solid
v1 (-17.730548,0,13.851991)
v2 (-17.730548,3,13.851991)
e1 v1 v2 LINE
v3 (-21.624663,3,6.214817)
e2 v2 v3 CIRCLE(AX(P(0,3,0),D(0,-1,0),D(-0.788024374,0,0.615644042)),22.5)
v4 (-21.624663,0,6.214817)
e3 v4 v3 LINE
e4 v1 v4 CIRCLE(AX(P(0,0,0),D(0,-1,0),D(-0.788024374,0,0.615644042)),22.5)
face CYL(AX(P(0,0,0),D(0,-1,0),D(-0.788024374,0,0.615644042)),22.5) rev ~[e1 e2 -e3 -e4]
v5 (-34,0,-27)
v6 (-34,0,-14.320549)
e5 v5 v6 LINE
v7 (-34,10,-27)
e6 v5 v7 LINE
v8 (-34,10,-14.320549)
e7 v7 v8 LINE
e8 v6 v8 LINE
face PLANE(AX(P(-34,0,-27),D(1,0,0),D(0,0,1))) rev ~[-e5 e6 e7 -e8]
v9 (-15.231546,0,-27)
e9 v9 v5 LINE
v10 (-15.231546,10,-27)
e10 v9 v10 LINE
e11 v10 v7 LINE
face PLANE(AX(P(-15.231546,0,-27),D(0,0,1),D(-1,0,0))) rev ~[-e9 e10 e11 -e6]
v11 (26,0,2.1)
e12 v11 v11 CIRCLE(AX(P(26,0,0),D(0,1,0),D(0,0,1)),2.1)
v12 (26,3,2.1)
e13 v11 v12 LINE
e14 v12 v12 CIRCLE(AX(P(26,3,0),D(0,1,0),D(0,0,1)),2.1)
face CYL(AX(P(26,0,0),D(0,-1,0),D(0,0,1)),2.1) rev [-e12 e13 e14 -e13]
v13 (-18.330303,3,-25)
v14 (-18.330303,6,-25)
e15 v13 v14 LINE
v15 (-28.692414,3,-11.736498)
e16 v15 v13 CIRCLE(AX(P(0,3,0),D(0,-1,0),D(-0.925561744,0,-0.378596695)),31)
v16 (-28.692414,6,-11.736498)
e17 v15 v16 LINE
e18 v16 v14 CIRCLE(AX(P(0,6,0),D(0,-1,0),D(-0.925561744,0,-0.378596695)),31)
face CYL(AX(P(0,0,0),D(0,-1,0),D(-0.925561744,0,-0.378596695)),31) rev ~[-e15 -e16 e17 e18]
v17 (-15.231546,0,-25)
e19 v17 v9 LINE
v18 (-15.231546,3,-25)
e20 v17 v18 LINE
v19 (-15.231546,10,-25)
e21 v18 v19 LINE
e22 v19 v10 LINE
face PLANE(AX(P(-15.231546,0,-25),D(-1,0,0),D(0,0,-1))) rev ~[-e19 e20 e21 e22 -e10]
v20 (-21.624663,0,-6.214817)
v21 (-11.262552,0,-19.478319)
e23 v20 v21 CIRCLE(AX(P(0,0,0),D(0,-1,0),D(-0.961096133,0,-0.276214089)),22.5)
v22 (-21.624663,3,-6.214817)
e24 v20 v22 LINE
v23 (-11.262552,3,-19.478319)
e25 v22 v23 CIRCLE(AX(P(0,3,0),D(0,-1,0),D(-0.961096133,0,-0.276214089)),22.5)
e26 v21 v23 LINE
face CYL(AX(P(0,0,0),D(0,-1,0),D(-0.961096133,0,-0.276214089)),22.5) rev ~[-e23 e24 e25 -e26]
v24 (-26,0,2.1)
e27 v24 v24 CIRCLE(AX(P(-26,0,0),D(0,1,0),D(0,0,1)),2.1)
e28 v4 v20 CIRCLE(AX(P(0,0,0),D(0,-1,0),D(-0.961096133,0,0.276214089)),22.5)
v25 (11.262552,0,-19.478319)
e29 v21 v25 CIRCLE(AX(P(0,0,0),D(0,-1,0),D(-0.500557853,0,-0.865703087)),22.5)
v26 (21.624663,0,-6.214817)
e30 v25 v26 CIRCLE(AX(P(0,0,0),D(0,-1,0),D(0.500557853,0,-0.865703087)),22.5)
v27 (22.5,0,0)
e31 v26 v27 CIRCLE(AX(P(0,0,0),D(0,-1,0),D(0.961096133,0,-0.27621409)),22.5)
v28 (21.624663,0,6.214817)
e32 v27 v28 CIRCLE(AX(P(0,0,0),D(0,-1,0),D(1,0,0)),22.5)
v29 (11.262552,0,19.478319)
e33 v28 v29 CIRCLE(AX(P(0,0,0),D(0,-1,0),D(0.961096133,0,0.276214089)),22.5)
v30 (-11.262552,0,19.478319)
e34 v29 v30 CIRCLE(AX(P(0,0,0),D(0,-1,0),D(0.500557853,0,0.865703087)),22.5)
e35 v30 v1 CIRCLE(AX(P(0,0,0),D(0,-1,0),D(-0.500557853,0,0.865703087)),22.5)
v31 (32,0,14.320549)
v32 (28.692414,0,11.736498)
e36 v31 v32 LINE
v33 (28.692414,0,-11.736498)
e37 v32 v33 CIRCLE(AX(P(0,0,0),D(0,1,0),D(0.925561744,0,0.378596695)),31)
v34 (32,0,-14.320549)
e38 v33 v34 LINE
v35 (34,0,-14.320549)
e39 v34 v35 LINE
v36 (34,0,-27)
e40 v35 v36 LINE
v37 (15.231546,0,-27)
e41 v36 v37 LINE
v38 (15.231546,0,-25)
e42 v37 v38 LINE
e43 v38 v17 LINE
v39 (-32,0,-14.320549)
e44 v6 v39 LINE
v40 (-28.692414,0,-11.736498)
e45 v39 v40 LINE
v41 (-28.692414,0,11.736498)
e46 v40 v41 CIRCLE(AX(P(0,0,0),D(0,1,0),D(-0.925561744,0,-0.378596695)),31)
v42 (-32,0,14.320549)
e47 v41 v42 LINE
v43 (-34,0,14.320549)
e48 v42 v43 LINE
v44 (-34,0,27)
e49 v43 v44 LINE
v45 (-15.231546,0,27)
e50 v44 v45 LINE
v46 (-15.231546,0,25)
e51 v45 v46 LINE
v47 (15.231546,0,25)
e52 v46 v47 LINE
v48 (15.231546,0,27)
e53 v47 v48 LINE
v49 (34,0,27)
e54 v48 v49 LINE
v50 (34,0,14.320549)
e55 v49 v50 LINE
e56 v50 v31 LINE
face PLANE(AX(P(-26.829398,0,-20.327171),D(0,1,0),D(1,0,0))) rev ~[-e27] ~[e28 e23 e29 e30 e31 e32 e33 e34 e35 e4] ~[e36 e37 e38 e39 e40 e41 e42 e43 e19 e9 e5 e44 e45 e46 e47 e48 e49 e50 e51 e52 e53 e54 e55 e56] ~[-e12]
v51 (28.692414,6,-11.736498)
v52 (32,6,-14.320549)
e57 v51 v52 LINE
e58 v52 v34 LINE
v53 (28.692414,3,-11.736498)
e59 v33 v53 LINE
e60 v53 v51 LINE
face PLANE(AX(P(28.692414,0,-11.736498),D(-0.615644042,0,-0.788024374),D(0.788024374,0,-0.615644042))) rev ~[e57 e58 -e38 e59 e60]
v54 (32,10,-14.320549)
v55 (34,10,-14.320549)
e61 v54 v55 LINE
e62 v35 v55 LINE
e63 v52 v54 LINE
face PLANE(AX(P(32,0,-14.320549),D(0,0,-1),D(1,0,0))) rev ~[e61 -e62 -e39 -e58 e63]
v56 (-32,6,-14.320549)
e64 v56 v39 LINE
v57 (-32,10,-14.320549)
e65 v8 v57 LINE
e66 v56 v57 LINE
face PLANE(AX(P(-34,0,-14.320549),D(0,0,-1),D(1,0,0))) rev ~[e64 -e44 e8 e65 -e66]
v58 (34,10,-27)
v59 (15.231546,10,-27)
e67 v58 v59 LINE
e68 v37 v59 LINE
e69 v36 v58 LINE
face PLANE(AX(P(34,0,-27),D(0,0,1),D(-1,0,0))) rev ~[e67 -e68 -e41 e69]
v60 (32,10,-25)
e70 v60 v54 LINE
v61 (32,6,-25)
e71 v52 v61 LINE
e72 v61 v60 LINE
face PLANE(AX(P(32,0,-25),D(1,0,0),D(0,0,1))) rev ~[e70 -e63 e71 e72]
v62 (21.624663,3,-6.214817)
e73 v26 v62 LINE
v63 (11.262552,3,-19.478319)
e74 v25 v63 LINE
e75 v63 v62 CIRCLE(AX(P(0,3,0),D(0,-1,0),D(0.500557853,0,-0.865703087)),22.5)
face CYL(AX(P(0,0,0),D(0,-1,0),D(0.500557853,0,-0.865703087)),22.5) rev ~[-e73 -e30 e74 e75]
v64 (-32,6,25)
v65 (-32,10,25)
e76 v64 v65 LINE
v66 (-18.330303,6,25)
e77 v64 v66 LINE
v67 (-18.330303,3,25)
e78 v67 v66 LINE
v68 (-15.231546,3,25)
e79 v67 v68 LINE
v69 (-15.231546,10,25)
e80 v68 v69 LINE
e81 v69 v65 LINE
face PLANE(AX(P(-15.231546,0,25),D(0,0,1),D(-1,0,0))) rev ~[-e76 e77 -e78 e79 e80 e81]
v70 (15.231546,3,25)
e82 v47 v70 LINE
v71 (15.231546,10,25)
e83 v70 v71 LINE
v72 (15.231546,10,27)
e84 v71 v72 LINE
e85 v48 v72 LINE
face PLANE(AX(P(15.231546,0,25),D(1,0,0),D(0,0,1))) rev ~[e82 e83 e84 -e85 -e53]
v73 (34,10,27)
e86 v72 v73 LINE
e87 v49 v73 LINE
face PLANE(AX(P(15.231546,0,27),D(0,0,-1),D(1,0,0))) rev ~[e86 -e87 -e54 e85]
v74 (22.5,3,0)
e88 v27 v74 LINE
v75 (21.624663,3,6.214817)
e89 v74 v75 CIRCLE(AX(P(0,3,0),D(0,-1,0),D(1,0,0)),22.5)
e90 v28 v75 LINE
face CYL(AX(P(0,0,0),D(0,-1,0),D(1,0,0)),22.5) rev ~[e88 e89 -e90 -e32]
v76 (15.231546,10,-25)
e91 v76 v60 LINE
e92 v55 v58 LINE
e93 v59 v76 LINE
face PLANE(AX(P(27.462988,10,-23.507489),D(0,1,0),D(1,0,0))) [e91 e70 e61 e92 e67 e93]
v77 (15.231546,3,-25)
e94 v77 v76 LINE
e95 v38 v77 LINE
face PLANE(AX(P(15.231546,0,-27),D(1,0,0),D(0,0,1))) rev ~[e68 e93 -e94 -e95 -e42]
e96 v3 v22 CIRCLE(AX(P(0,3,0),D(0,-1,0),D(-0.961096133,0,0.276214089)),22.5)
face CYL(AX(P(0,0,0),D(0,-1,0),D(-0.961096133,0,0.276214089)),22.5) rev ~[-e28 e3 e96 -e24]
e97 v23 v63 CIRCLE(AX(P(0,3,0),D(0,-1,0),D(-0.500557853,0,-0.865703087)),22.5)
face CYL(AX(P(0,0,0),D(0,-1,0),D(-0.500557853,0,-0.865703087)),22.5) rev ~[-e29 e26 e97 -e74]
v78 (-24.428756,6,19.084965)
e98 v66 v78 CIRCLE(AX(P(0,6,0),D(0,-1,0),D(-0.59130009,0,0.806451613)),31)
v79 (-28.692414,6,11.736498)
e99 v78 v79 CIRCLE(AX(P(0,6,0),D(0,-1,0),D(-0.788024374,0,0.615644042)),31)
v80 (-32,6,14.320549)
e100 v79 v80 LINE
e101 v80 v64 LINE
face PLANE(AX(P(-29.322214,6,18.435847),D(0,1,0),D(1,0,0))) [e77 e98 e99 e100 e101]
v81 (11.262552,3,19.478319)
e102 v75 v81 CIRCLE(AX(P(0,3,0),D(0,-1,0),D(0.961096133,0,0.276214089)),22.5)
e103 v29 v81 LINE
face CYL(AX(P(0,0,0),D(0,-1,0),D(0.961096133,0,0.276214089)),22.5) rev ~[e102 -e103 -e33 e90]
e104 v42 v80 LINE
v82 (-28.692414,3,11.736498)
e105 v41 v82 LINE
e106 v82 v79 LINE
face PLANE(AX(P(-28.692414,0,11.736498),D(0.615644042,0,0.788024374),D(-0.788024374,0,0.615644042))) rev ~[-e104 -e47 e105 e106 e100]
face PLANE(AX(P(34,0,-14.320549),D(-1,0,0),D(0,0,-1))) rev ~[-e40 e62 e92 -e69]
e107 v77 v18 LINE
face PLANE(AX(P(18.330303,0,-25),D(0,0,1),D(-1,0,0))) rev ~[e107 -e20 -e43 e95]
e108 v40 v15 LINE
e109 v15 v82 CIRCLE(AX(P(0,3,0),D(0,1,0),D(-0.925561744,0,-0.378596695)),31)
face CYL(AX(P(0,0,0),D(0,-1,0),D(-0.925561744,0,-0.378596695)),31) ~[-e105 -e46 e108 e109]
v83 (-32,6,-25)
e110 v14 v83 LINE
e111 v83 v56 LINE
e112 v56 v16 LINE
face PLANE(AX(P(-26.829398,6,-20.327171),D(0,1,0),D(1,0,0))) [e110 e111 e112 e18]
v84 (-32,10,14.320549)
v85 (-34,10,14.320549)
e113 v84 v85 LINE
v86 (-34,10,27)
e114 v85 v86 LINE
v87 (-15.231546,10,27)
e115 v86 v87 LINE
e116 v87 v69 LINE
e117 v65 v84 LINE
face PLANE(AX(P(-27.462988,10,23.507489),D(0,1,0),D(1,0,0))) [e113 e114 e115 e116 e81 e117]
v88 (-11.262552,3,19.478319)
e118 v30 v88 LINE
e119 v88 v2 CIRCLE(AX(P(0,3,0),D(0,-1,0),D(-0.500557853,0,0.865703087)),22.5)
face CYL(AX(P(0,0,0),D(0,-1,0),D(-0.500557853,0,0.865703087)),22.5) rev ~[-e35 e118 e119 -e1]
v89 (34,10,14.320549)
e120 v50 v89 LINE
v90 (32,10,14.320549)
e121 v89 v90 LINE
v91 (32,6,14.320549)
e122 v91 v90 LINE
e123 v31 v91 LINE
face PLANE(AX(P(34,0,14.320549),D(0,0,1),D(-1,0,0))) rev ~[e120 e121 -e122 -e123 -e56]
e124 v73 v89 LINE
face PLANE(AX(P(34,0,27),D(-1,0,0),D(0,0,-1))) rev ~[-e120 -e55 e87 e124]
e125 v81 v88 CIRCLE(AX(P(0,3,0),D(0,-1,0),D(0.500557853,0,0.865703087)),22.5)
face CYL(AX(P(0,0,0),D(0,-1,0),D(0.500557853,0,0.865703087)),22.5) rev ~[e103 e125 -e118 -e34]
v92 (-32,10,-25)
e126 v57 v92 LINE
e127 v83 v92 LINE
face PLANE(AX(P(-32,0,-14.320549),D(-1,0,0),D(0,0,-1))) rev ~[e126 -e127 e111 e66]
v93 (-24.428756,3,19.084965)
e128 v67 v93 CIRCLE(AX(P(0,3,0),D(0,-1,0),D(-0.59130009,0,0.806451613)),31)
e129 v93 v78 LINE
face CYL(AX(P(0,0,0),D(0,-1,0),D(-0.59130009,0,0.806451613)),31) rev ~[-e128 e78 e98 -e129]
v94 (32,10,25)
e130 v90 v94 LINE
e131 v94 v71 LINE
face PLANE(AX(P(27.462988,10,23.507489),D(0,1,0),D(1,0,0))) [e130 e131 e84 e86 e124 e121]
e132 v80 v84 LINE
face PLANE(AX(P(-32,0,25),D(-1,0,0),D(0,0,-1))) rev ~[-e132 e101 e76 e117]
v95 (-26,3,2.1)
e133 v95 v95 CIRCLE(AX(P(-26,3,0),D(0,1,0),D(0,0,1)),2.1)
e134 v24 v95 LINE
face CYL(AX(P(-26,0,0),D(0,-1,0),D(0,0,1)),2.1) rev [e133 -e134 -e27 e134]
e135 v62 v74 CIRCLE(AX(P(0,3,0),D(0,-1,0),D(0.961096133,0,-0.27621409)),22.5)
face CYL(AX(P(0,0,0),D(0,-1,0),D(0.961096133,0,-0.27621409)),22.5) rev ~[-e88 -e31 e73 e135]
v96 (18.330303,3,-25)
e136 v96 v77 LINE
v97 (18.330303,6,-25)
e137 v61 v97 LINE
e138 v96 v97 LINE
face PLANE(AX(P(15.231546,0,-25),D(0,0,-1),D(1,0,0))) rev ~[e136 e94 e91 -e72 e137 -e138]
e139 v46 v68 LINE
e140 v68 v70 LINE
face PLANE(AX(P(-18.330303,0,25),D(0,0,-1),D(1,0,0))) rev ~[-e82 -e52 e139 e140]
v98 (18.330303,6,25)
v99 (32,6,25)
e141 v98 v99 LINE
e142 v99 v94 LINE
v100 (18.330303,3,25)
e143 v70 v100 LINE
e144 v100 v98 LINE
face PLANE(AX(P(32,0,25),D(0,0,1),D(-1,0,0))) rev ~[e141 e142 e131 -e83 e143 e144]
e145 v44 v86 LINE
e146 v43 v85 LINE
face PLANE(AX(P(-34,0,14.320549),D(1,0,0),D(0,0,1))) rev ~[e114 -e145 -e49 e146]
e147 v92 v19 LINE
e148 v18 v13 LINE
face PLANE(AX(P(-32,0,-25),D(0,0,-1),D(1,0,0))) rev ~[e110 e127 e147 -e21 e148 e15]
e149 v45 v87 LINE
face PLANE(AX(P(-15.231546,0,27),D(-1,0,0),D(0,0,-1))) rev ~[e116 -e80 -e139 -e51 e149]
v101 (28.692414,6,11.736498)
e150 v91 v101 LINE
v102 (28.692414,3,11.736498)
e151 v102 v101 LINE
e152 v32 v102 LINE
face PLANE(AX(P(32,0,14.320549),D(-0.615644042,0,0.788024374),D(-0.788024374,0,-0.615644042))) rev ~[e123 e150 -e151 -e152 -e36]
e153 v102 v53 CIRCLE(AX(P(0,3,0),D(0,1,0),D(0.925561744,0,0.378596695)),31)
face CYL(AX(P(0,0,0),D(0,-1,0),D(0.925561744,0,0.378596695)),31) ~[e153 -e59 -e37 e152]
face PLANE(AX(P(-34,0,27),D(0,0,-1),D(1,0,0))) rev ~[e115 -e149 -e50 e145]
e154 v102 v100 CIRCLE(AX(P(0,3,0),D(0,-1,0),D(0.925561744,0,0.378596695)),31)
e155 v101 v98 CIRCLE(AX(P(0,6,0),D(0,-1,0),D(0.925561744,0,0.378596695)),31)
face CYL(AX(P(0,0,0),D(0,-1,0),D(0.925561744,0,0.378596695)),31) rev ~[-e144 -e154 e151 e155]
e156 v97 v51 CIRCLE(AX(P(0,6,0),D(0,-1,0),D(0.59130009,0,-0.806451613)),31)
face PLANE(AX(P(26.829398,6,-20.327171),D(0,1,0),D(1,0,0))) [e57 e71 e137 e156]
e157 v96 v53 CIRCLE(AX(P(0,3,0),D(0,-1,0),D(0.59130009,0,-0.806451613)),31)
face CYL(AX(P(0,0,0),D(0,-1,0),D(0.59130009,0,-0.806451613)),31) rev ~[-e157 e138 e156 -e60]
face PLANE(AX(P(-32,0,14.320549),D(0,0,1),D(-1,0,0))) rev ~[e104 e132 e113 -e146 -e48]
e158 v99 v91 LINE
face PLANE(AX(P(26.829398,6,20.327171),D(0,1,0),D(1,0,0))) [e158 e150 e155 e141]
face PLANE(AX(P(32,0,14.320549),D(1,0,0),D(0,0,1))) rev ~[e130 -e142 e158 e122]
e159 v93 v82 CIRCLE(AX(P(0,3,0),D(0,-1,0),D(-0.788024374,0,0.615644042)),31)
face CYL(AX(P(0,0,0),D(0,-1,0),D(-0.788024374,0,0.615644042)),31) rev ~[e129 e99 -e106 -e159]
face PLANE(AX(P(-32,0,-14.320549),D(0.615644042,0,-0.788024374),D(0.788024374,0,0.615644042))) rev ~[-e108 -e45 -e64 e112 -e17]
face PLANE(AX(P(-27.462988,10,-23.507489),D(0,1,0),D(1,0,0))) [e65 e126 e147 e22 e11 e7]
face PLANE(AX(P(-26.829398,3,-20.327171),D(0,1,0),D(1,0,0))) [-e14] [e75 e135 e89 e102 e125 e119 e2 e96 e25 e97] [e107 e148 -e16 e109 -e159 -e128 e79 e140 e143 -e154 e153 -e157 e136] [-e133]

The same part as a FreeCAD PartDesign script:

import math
import FreeCAD as App
import Part
import Sketcher
from FreeCAD import Vector


def add_polygon(sketch, points):
    """Adds a closed chain of lines whose ends are joined by coincident constraints."""
    first, n = sketch.GeometryCount, len(points)
    for a, b in zip(points, points[1:] + points[:1]):
        sketch.addGeometry(Part.LineSegment(App.Vector(*a, 0), App.Vector(*b, 0)), False)
    for i in range(n):
        sketch.addConstraint(Sketcher.Constraint("Coincident", first + i, 2, first + (i + 1) % n, 1))

doc = App.newDocument("Part")
params = doc.addObject("Spreadsheet::Sheet", "Params")
for row, (alias, value) in enumerate([
    ("sketch1_width", "2 mm"),
    ("pad1_length", "10 mm"),
    ("sketch2_width", "2 mm"),
    ("pad2_length", "10 mm"),
    ("sketch3_width", "2 mm"),
    ("pad3_length", "10 mm"),
    ("sketch4_width", "2 mm"),
    ("pad4_length", "10 mm"),
    ("sketch5_radius", "31 mm"),
    ("sketch5_diameter", "4.2 mm"),
    ("sketch5_radius2", "22.5 mm"),
    ("sketch5_width", "64 mm"),
    ("pad5_length", "3 mm"),
    ("sketch6_radius", "31 mm"),
    ("pad6_length", "6 mm"),
], start=1):
    params.set(f"A{row}", alias)
    params.set(f"B{row}", "=" + value)
    params.setAlias(f"B{row}", alias)

body = doc.addObject("PartDesign::Body", "Body")

# Sketch on XZ plane
sketch1 = doc.addObject("Sketcher::SketchObject", "Sketch")
body.addObject(sketch1)
sketch1.AttachmentSupport = (doc.XZ_Plane, [""])
sketch1.MapMode = "FlatFace"
add_polygon(sketch1, [(-15.2, 27), (-15.2, 25), (-32, 25), (-32, 14.3), (-34, 14.3), (-34, 27)])  # lines 0-5
sketch1.addConstraint(Sketcher.Constraint("Vertical", 0))
sketch1.addConstraint(Sketcher.Constraint("Horizontal", 1))
sketch1.addConstraint(Sketcher.Constraint("Vertical", 2))
sketch1.addConstraint(Sketcher.Constraint("Horizontal", 3))
sketch1.addConstraint(Sketcher.Constraint("Vertical", 4))
sketch1.addConstraint(Sketcher.Constraint("Horizontal", 5))
sketch1.addConstraint(Sketcher.Constraint("Equal", 3, 0))
sketch1.addConstraint(Sketcher.Constraint("DistanceX", 3, 2, 3, 1, 2.0))
sketch1.addConstraint(Sketcher.Constraint("DistanceY", -1, 1, 0, 2, 25.0))
sketch1.addConstraint(Sketcher.Constraint("DistanceX", 1, 2, -1, 1, 32.0))
sketch1.addConstraint(Sketcher.Constraint("DistanceY", 2, 2, 2, 1, 10.679451))
sketch1.addConstraint(Sketcher.Constraint("DistanceX", 1, 2, 1, 1, 16.768454))
sketch1.setExpression("Constraints[13]", "Params.sketch1_width")
pad1 = doc.addObject("PartDesign::Pad", "Pad")
body.addObject(pad1)
pad1.Profile = sketch1
pad1.setExpression("Length", "Params.pad1_length")
pad1.Reversed = True
body2 = doc.addObject("PartDesign::Body", "Body001")

# Sketch on XZ plane
sketch2 = doc.addObject("Sketcher::SketchObject", "Sketch001")
body2.addObject(sketch2)
sketch2.AttachmentSupport = (doc.getObject("XZ_Plane001"), [""])
sketch2.MapMode = "FlatFace"
add_polygon(sketch2, [(32, 14.3), (32, 25), (15.2, 25), (15.2, 27), (34, 27), (34, 14.3)])  # lines 0-5
sketch2.addConstraint(Sketcher.Constraint("Vertical", 0))
sketch2.addConstraint(Sketcher.Constraint("Horizontal", 1))
sketch2.addConstraint(Sketcher.Constraint("Vertical", 2))
sketch2.addConstraint(Sketcher.Constraint("Horizontal", 3))
sketch2.addConstraint(Sketcher.Constraint("Vertical", 4))
sketch2.addConstraint(Sketcher.Constraint("Horizontal", 5))
sketch2.addConstraint(Sketcher.Constraint("Equal", 5, 2))
sketch2.addConstraint(Sketcher.Constraint("DistanceX", 5, 2, 5, 1, 2.0))
sketch2.addConstraint(Sketcher.Constraint("DistanceX", -1, 1, 0, 2, 32.0))
sketch2.addConstraint(Sketcher.Constraint("DistanceY", -1, 1, 0, 2, 25.0))
sketch2.addConstraint(Sketcher.Constraint("DistanceY", 0, 1, 0, 2, 10.679451))
sketch2.addConstraint(Sketcher.Constraint("DistanceX", 1, 2, 1, 1, 16.768454))
sketch2.setExpression("Constraints[13]", "Params.sketch2_width")
pad2 = doc.addObject("PartDesign::Pad", "Pad001")
body2.addObject(pad2)
pad2.Profile = sketch2
pad2.setExpression("Length", "Params.pad2_length")
pad2.Reversed = True
body3 = doc.addObject("PartDesign::Body", "Body002")

# Sketch on XZ plane
sketch3 = doc.addObject("Sketcher::SketchObject", "Sketch002")
body3.addObject(sketch3)
sketch3.AttachmentSupport = (doc.getObject("XZ_Plane002"), [""])
sketch3.MapMode = "FlatFace"
add_polygon(sketch3, [(32, -25), (32, -14.3), (34, -14.3), (34, -27), (15.2, -27), (15.2, -25)])  # lines 0-5
sketch3.addConstraint(Sketcher.Constraint("Vertical", 0))
sketch3.addConstraint(Sketcher.Constraint("Horizontal", 1))
sketch3.addConstraint(Sketcher.Constraint("Vertical", 2))
sketch3.addConstraint(Sketcher.Constraint("Horizontal", 3))
sketch3.addConstraint(Sketcher.Constraint("Vertical", 4))
sketch3.addConstraint(Sketcher.Constraint("Horizontal", 5))
sketch3.addConstraint(Sketcher.Constraint("Equal", 1, 4))
sketch3.addConstraint(Sketcher.Constraint("DistanceX", 1, 1, 1, 2, 2.0))
sketch3.addConstraint(Sketcher.Constraint("DistanceX", -1, 1, 0, 2, 32.0))
sketch3.addConstraint(Sketcher.Constraint("DistanceY", 2, 2, -1, 1, 27.0))
sketch3.addConstraint(Sketcher.Constraint("DistanceY", 0, 1, 0, 2, 10.679451))
sketch3.addConstraint(Sketcher.Constraint("DistanceX", 3, 2, 3, 1, 18.768454))
sketch3.setExpression("Constraints[13]", "Params.sketch3_width")
pad3 = doc.addObject("PartDesign::Pad", "Pad002")
body3.addObject(pad3)
pad3.Profile = sketch3
pad3.setExpression("Length", "Params.pad3_length")
pad3.Reversed = True
body4 = doc.addObject("PartDesign::Body", "Body003")

# Sketch on XZ plane
sketch4 = doc.addObject("Sketcher::SketchObject", "Sketch003")
body4.addObject(sketch4)
sketch4.AttachmentSupport = (doc.getObject("XZ_Plane003"), [""])
sketch4.MapMode = "FlatFace"
add_polygon(sketch4, [(-15.2, -25), (-15.2, -27), (-34, -27), (-34, -14.3), (-32, -14.3), (-32, -25)])  # lines 0-5
sketch4.addConstraint(Sketcher.Constraint("Vertical", 0))
sketch4.addConstraint(Sketcher.Constraint("Horizontal", 1))
sketch4.addConstraint(Sketcher.Constraint("Vertical", 2))
sketch4.addConstraint(Sketcher.Constraint("Horizontal", 3))
sketch4.addConstraint(Sketcher.Constraint("Vertical", 4))
sketch4.addConstraint(Sketcher.Constraint("Horizontal", 5))
sketch4.addConstraint(Sketcher.Constraint("Equal", 3, 0))
sketch4.addConstraint(Sketcher.Constraint("DistanceX", 3, 1, 3, 2, 2.0))
sketch4.addConstraint(Sketcher.Constraint("DistanceY", 0, 2, -1, 1, 27.0))
sketch4.addConstraint(Sketcher.Constraint("DistanceX", 1, 2, -1, 1, 34.0))
sketch4.addConstraint(Sketcher.Constraint("DistanceY", 2, 1, 2, 2, 12.679451))
sketch4.addConstraint(Sketcher.Constraint("DistanceX", 1, 2, 1, 1, 18.768454))
sketch4.setExpression("Constraints[13]", "Params.sketch4_width")
pad4 = doc.addObject("PartDesign::Pad", "Pad003")
body4.addObject(pad4)
pad4.Profile = sketch4
pad4.setExpression("Length", "Params.pad4_length")
pad4.Reversed = True
body.AllowCompound = True
doc.recompute()

boolean = doc.addObject("PartDesign::Boolean", "Boolean")
body.addObject(boolean)
boolean.Type = "Fuse"
boolean.addObjects([body2])
doc.recompute()

boolean2 = doc.addObject("PartDesign::Boolean", "Boolean001")
body.addObject(boolean2)
boolean2.Type = "Fuse"
boolean2.addObjects([body3])
doc.recompute()

boolean3 = doc.addObject("PartDesign::Boolean", "Boolean002")
body.addObject(boolean3)
boolean3.Type = "Fuse"
boolean3.addObjects([body4])

# Sketch on XZ plane
sketch5 = doc.addObject("Sketcher::SketchObject", "Sketch004")
body.addObject(sketch5)
sketch5.AttachmentSupport = (doc.XZ_Plane, [""])
sketch5.MapMode = "FlatFace"
sketch5.addGeometry(Part.LineSegment(Vector(-32, -25, 0), Vector(-32, -14.3, 0)), False)
sketch5.addGeometry(Part.LineSegment(Vector(-32, -14.3, 0), Vector(-28.7, -11.7, 0)), False)
sketch5.addGeometry(Part.ArcOfCircle(Part.Circle(Vector(0, 0, 0), Vector(0, 0, 1), 31), math.radians(158), math.radians(202)), False)
sketch5.addGeometry(Part.LineSegment(Vector(-28.7, 11.7, 0), Vector(-32, 14.3, 0)), False)
sketch5.addGeometry(Part.LineSegment(Vector(-32, 14.3, 0), Vector(-32, 25, 0)), False)
sketch5.addGeometry(Part.LineSegment(Vector(-32, 25, 0), Vector(32, 25, 0)), False)
sketch5.addGeometry(Part.LineSegment(Vector(32, 25, 0), Vector(32, 14.3, 0)), False)
sketch5.addGeometry(Part.LineSegment(Vector(32, 14.3, 0), Vector(28.7, 11.7, 0)), False)
sketch5.addGeometry(Part.ArcOfCircle(Part.Circle(Vector(0, 0, 0), Vector(0, 0, 1), 31), math.radians(-22), math.radians(22)), False)
sketch5.addGeometry(Part.LineSegment(Vector(28.7, -11.7, 0), Vector(32, -14.3, 0)), False)
sketch5.addGeometry(Part.LineSegment(Vector(32, -14.3, 0), Vector(32, -25, 0)), False)
sketch5.addGeometry(Part.LineSegment(Vector(32, -25, 0), Vector(-32, -25, 0)), False)
sketch5.addGeometry(Part.ArcOfCircle(Part.Circle(Vector(0, 0, 0), Vector(0, 0, 1), 22.5), math.radians(-164), math.radians(-120)), False)
sketch5.addGeometry(Part.ArcOfCircle(Part.Circle(Vector(0, 0, 0), Vector(0, 0, 1), 22.5), math.radians(-120), math.radians(-60)), False)
sketch5.addGeometry(Part.ArcOfCircle(Part.Circle(Vector(0, 0, 0), Vector(0, 0, 1), 22.5), math.radians(-60), math.radians(-16)), False)
sketch5.addGeometry(Part.ArcOfCircle(Part.Circle(Vector(0, 0, 0), Vector(0, 0, 1), 22.5), math.radians(-16.03), math.radians(0)), False)
sketch5.addGeometry(Part.ArcOfCircle(Part.Circle(Vector(0, 0, 0), Vector(0, 0, 1), 22.5), math.radians(0), math.radians(16.03)), False)
sketch5.addGeometry(Part.ArcOfCircle(Part.Circle(Vector(0, 0, 0), Vector(0, 0, 1), 22.5), math.radians(16), math.radians(60)), False)
sketch5.addGeometry(Part.ArcOfCircle(Part.Circle(Vector(0, 0, 0), Vector(0, 0, 1), 22.5), math.radians(60), math.radians(120)), False)
sketch5.addGeometry(Part.ArcOfCircle(Part.Circle(Vector(0, 0, 0), Vector(0, 0, 1), 22.5), math.radians(120), math.radians(142)), False)
sketch5.addGeometry(Part.ArcOfCircle(Part.Circle(Vector(0, 0, 0), Vector(0, 0, 1), 22.5), math.radians(142), math.radians(164)), False)
sketch5.addGeometry(Part.ArcOfCircle(Part.Circle(Vector(0, 0, 0), Vector(0, 0, 1), 22.5), math.radians(164), math.radians(196)), False)
sketch5.addGeometry(Part.Circle(Vector(-26, 0, 0), Vector(0, 0, 1), 2.1), False)
sketch5.addGeometry(Part.Circle(Vector(26, 0, 0), Vector(0, 0, 1), 2.1), False)
sketch5.addConstraint(Sketcher.Constraint("Coincident", 0, 2, 1, 1))
sketch5.addConstraint(Sketcher.Constraint("Coincident", 1, 2, 2, 2))
sketch5.addConstraint(Sketcher.Constraint("Coincident", 2, 1, 3, 1))
sketch5.addConstraint(Sketcher.Constraint("Coincident", 3, 2, 4, 1))
sketch5.addConstraint(Sketcher.Constraint("Coincident", 4, 2, 5, 1))
sketch5.addConstraint(Sketcher.Constraint("Coincident", 5, 2, 6, 1))
sketch5.addConstraint(Sketcher.Constraint("Coincident", 6, 2, 7, 1))
sketch5.addConstraint(Sketcher.Constraint("Coincident", 7, 2, 8, 2))
sketch5.addConstraint(Sketcher.Constraint("Coincident", 8, 1, 9, 1))
sketch5.addConstraint(Sketcher.Constraint("Coincident", 9, 2, 10, 1))
sketch5.addConstraint(Sketcher.Constraint("Coincident", 10, 2, 11, 1))
sketch5.addConstraint(Sketcher.Constraint("Coincident", 11, 2, 0, 1))
sketch5.addConstraint(Sketcher.Constraint("Tangent", 12, 2, 13, 1))
sketch5.addConstraint(Sketcher.Constraint("Tangent", 13, 2, 14, 1))
sketch5.addConstraint(Sketcher.Constraint("Tangent", 14, 2, 15, 1))
sketch5.addConstraint(Sketcher.Constraint("Tangent", 15, 2, 16, 1))
sketch5.addConstraint(Sketcher.Constraint("Tangent", 16, 2, 17, 1))
sketch5.addConstraint(Sketcher.Constraint("Tangent", 17, 2, 18, 1))
sketch5.addConstraint(Sketcher.Constraint("Tangent", 18, 2, 19, 1))
sketch5.addConstraint(Sketcher.Constraint("Tangent", 19, 2, 20, 1))
sketch5.addConstraint(Sketcher.Constraint("Tangent", 20, 2, 21, 1))
sketch5.addConstraint(Sketcher.Constraint("Tangent", 21, 2, 12, 1))
sketch5.addConstraint(Sketcher.Constraint("Vertical", 0))
sketch5.addConstraint(Sketcher.Constraint("Vertical", 4))
sketch5.addConstraint(Sketcher.Constraint("Horizontal", 5))
sketch5.addConstraint(Sketcher.Constraint("Vertical", 6))
sketch5.addConstraint(Sketcher.Constraint("Vertical", 10))
sketch5.addConstraint(Sketcher.Constraint("Horizontal", 11))
sketch5.addConstraint(Sketcher.Constraint("Coincident", 2, 3, -1, 1))
sketch5.addConstraint(Sketcher.Constraint("Coincident", 8, 3, -1, 1))
sketch5.addConstraint(Sketcher.Constraint("Coincident", 12, 3, -1, 1))
sketch5.addConstraint(Sketcher.Constraint("Coincident", 14, 3, -1, 1))
sketch5.addConstraint(Sketcher.Constraint("Coincident", 16, 3, -1, 1))
sketch5.addConstraint(Sketcher.Constraint("Coincident", 18, 3, -1, 1))
sketch5.addConstraint(Sketcher.Constraint("Equal", 2, 8))
sketch5.addConstraint(Sketcher.Constraint("Equal", 18, 19))
sketch5.addConstraint(Sketcher.Constraint("Equal", 22, 23))
sketch5.addConstraint(Sketcher.Constraint("Symmetric", 22, 3, 23, 3, -1, 1))
sketch5.addConstraint(Sketcher.Constraint("Symmetric", 0, 2, 6, 2, -1, 1))
sketch5.addConstraint(Sketcher.Constraint("Symmetric", 3, 2, 9, 2, -1, 1))
sketch5.addConstraint(Sketcher.Constraint("Symmetric", 3, 2, 6, 2, -2))
sketch5.addConstraint(Sketcher.Constraint("PointOnObject", 22, 3, -1))
sketch5.addConstraint(Sketcher.Constraint("PointOnObject", 15, 2, -1))
sketch5.addConstraint(Sketcher.Constraint("Parallel", 1, 7))
sketch5.addConstraint(Sketcher.Constraint("Parallel", 3, 9))
sketch5.addConstraint(Sketcher.Constraint("Horizontal", 2, 1, 7, 2))
sketch5.addConstraint(Sketcher.Constraint("Horizontal", 12, 2, 13, 2))
sketch5.addConstraint(Sketcher.Constraint("Horizontal", 17, 2, 18, 2))
sketch5.addConstraint(Sketcher.Constraint("Horizontal", 16, 2, 20, 2))
sketch5.addConstraint(Sketcher.Constraint("Horizontal", 14, 2, 21, 2))
sketch5.addConstraint(Sketcher.Constraint("Vertical", 14, 2, 16, 2))
sketch5.addConstraint(Sketcher.Constraint("Vertical", 13, 2, 17, 2))
sketch5.addConstraint(Sketcher.Constraint("Equal", 0, 4))
sketch5.addConstraint(Sketcher.Constraint("Radius", 2, 31.0))
sketch5.addConstraint(Sketcher.Constraint("Diameter", 22, 4.2))
sketch5.addConstraint(Sketcher.Constraint("Radius", 12, 22.5))
sketch5.addConstraint(Sketcher.Constraint("DistanceX", 5, 1, 5, 2, 64.0))
sketch5.addConstraint(Sketcher.Constraint("DistanceX", 22, 3, -1, 1, 26.0))
sketch5.addConstraint(Sketcher.Constraint("DistanceY", -1, 1, 4, 2, 25.0))
sketch5.addConstraint(Sketcher.Constraint("DistanceY", 0, 1, 0, 2, 10.679451))
sketch5.addConstraint(Sketcher.Constraint("DistanceX", 12, 2, -1, 1, 11.262552))
sketch5.addConstraint(Sketcher.Constraint("DistanceX", 19, 2, -1, 1, 17.730548))
sketch5.addConstraint(Sketcher.Constraint("DistanceY", 0, 2, 1, 2, 2.584052))
sketch5.addConstraint(Sketcher.Constraint("DistanceX", 14, 2, 8, 1, 7.067751))
sketch5.setExpression("Constraints[53]", "Params.sketch5_radius")
sketch5.setExpression("Constraints[54]", "Params.sketch5_diameter")
sketch5.setExpression("Constraints[55]", "Params.sketch5_radius2")
sketch5.setExpression("Constraints[56]", "Params.sketch5_width")
pad5 = doc.addObject("PartDesign::Pad", "Pad004")
body.addObject(pad5)
pad5.Profile = sketch5
pad5.setExpression("Length", "Params.pad5_length")
pad5.Reversed = True

# Sketch on XZ plane
sketch6 = doc.addObject("Sketcher::SketchObject", "Sketch005")
body.addObject(sketch6)
sketch6.AttachmentSupport = (doc.XZ_Plane, [""])
sketch6.MapMode = "FlatFace"
sketch6.addGeometry(Part.LineSegment(Vector(-32, -25, 0), Vector(-32, -14.3, 0)), False)
sketch6.addGeometry(Part.LineSegment(Vector(-32, -14.3, 0), Vector(-28.7, -11.7, 0)), False)
sketch6.addGeometry(Part.ArcOfCircle(Part.Circle(Vector(0, 0, 0), Vector(0, 0, 1), 31), math.radians(-158), math.radians(-126)), False)
sketch6.addGeometry(Part.LineSegment(Vector(-18.3, -25, 0), Vector(-32, -25, 0)), False)
sketch6.addGeometry(Part.LineSegment(Vector(28.7, -11.7, 0), Vector(32, -14.3, 0)), False)
sketch6.addGeometry(Part.LineSegment(Vector(32, -14.3, 0), Vector(32, -25, 0)), False)
sketch6.addGeometry(Part.LineSegment(Vector(32, -25, 0), Vector(18.3, -25, 0)), False)
sketch6.addGeometry(Part.ArcOfCircle(Part.Circle(Vector(0, 0, 0), Vector(0, 0, 1), 31), math.radians(-54), math.radians(-22)), False)
sketch6.addGeometry(Part.LineSegment(Vector(18.3, 25, 0), Vector(32, 25, 0)), False)
sketch6.addGeometry(Part.LineSegment(Vector(32, 25, 0), Vector(32, 14.3, 0)), False)
sketch6.addGeometry(Part.LineSegment(Vector(32, 14.3, 0), Vector(28.7, 11.7, 0)), False)
sketch6.addGeometry(Part.ArcOfCircle(Part.Circle(Vector(0, 0, 0), Vector(0, 0, 1), 31), math.radians(22), math.radians(54)), False)
sketch6.addGeometry(Part.LineSegment(Vector(-32, 14.3, 0), Vector(-32, 25, 0)), False)
sketch6.addGeometry(Part.LineSegment(Vector(-32, 25, 0), Vector(-18.3, 25, 0)), False)
sketch6.addGeometry(Part.ArcOfCircle(Part.Circle(Vector(0, 0, 0), Vector(0, 0, 1), 31), math.radians(126.25), math.radians(142)), False)
sketch6.addGeometry(Part.ArcOfCircle(Part.Circle(Vector(0, 0, 0), Vector(0, 0, 1), 31), math.radians(142), math.radians(157.75)), False)
sketch6.addGeometry(Part.LineSegment(Vector(-28.7, 11.7, 0), Vector(-32, 14.3, 0)), False)
sketch6.addConstraint(Sketcher.Constraint("Coincident", 0, 2, 1, 1))
sketch6.addConstraint(Sketcher.Constraint("Coincident", 1, 2, 2, 1))
sketch6.addConstraint(Sketcher.Constraint("Coincident", 2, 2, 3, 1))
sketch6.addConstraint(Sketcher.Constraint("Coincident", 3, 2, 0, 1))
sketch6.addConstraint(Sketcher.Constraint("Coincident", 4, 2, 5, 1))
sketch6.addConstraint(Sketcher.Constraint("Coincident", 5, 2, 6, 1))
sketch6.addConstraint(Sketcher.Constraint("Coincident", 6, 2, 7, 1))
sketch6.addConstraint(Sketcher.Constraint("Coincident", 7, 2, 4, 1))
sketch6.addConstraint(Sketcher.Constraint("Coincident", 8, 2, 9, 1))
sketch6.addConstraint(Sketcher.Constraint("Coincident", 9, 2, 10, 1))
sketch6.addConstraint(Sketcher.Constraint("Coincident", 10, 2, 11, 1))
sketch6.addConstraint(Sketcher.Constraint("Coincident", 11, 2, 8, 1))
sketch6.addConstraint(Sketcher.Constraint("Coincident", 12, 2, 13, 1))
sketch6.addConstraint(Sketcher.Constraint("Coincident", 13, 2, 14, 1))
sketch6.addConstraint(Sketcher.Constraint("Tangent", 14, 2, 15, 1))
sketch6.addConstraint(Sketcher.Constraint("Coincident", 15, 2, 16, 1))
sketch6.addConstraint(Sketcher.Constraint("Coincident", 16, 2, 12, 1))
sketch6.addConstraint(Sketcher.Constraint("Vertical", 0))
sketch6.addConstraint(Sketcher.Constraint("Horizontal", 3))
sketch6.addConstraint(Sketcher.Constraint("Vertical", 5))
sketch6.addConstraint(Sketcher.Constraint("Horizontal", 6))
sketch6.addConstraint(Sketcher.Constraint("Horizontal", 8))
sketch6.addConstraint(Sketcher.Constraint("Vertical", 9))
sketch6.addConstraint(Sketcher.Constraint("Vertical", 12))
sketch6.addConstraint(Sketcher.Constraint("Horizontal", 13))
sketch6.addConstraint(Sketcher.Constraint("Coincident", 2, 3, -1, 1))
sketch6.addConstraint(Sketcher.Constraint("Coincident", 7, 3, -1, 1))
sketch6.addConstraint(Sketcher.Constraint("Coincident", 11, 3, -1, 1))
sketch6.addConstraint(Sketcher.Constraint("Coincident", 14, 3, -1, 1))
sketch6.addConstraint(Sketcher.Constraint("Equal", 2, 7))
sketch6.addConstraint(Sketcher.Constraint("Equal", 7, 11))
sketch6.addConstraint(Sketcher.Constraint("Equal", 11, 14))
sketch6.addConstraint(Sketcher.Constraint("Equal", 14, 15))
sketch6.addConstraint(Sketcher.Constraint("Symmetric", 3, 2, 8, 2, -1, 1))
sketch6.addConstraint(Sketcher.Constraint("Symmetric", 5, 2, 12, 2, -1, 1))
sketch6.addConstraint(Sketcher.Constraint("Symmetric", 0, 2, 4, 2, -2))
sketch6.addConstraint(Sketcher.Constraint("Parallel", 1, 10))
sketch6.addConstraint(Sketcher.Constraint("Parallel", 4, 16))
sketch6.addConstraint(Sketcher.Constraint("Horizontal", 3, 2, 5, 2))
sketch6.addConstraint(Sketcher.Constraint("Horizontal", 1, 2, 7, 2))
sketch6.addConstraint(Sketcher.Constraint("Horizontal", 10, 2, 15, 2))
sketch6.addConstraint(Sketcher.Constraint("Vertical", 7, 2, 10, 2))
sketch6.addConstraint(Sketcher.Constraint("Radius", 2, 31.0))
sketch6.addConstraint(Sketcher.Constraint("DistanceX", 0, 2, -1, 1, 32.0))
sketch6.addConstraint(Sketcher.Constraint("DistanceY", 2, 2, -1, 1, 25.0))
sketch6.addConstraint(Sketcher.Constraint("DistanceY", 0, 1, 0, 2, 10.679451))
sketch6.addConstraint(Sketcher.Constraint("DistanceY", 0, 2, 1, 2, 2.584052))
sketch6.addConstraint(Sketcher.Constraint("DistanceX", 15, 2, 14, 2, 4.263658))
sketch6.setExpression("Constraints[42]", "Params.sketch6_radius")
pad6 = doc.addObject("PartDesign::Pad", "Pad005")
body.addObject(pad6)
pad6.Profile = sketch6
pad6.setExpression("Length", "Params.pad6_length")
pad6.Reversed = True

doc.recompute()
